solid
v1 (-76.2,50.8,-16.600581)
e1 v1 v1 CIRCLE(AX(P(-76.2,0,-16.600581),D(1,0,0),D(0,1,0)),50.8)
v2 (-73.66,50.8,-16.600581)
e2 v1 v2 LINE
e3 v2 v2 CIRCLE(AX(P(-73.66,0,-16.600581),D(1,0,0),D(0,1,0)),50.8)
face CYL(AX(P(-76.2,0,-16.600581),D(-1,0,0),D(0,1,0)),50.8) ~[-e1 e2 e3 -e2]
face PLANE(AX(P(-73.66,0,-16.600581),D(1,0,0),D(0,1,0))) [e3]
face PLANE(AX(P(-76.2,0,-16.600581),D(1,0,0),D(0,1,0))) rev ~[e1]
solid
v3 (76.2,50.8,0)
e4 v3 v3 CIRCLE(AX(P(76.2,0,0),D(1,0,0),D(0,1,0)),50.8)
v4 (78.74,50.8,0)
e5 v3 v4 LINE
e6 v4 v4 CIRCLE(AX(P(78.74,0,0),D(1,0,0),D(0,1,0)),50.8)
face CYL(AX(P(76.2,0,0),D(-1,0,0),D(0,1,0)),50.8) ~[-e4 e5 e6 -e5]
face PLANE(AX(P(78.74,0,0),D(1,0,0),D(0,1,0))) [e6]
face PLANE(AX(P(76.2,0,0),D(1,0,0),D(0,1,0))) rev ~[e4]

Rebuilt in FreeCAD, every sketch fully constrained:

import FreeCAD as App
import Part
import Sketcher

V = App.Vector
Q = App.Units.Quantity

doc = App.newDocument("Part")
body = doc.addObject("PartDesign::Body", "Body")

# Sketch on YZ plane
sketch1 = body.newObject("Sketcher::SketchObject", "Sketch")
sketch1.AttachmentSupport = (doc.getObject("YZ_Plane"), [""])
sketch1.MapMode = "FlatFace"
sketch1.AttachmentOffset = App.Placement(V(0, 0, 3 * 25.4), App.Rotation())
sketch1.addGeometry(Part.Circle(V(0, 0, 0), V(0, 0, 1), 50.8), False)
sketch1.addConstraint([
    Sketcher.Constraint("Coincident", 0, 3, -1, 1),
    Sketcher.Constraint("Diameter", 0, Q("4 in")),
])
pad1 = body.newObject("PartDesign::Pad", "Pad")
pad1.Profile = sketch1
pad1.Length = Q("0.1 in")
body2 = doc.addObject("PartDesign::Body", "Body001")

# Sketch on YZ plane
sketch2 = body2.newObject("Sketcher::SketchObject", "Sketch001")
sketch2.AttachmentSupport = (doc.getObject("YZ_Plane001"), [""])
sketch2.MapMode = "FlatFace"
sketch2.AttachmentOffset = App.Placement(V(0, 0, -3 * 25.4), App.Rotation())
sketch2.addGeometry(Part.Circle(V(0, -16.600581, 0), V(0, 0, 1), 50.8), False)
sketch2.addConstraint([
    Sketcher.Constraint("PointOnObject", 0, 3, -2),
    Sketcher.Constraint("Diameter", 0, Q("4 in")),
    Sketcher.Constraint("DistanceY", 0, 3, -1, 1, Q("16.600581 mm")),
])
pad2 = body2.newObject("PartDesign::Pad", "Pad001")
pad2.Profile = sketch2
pad2.Length = Q("0.1 in")

doc.recompute()
